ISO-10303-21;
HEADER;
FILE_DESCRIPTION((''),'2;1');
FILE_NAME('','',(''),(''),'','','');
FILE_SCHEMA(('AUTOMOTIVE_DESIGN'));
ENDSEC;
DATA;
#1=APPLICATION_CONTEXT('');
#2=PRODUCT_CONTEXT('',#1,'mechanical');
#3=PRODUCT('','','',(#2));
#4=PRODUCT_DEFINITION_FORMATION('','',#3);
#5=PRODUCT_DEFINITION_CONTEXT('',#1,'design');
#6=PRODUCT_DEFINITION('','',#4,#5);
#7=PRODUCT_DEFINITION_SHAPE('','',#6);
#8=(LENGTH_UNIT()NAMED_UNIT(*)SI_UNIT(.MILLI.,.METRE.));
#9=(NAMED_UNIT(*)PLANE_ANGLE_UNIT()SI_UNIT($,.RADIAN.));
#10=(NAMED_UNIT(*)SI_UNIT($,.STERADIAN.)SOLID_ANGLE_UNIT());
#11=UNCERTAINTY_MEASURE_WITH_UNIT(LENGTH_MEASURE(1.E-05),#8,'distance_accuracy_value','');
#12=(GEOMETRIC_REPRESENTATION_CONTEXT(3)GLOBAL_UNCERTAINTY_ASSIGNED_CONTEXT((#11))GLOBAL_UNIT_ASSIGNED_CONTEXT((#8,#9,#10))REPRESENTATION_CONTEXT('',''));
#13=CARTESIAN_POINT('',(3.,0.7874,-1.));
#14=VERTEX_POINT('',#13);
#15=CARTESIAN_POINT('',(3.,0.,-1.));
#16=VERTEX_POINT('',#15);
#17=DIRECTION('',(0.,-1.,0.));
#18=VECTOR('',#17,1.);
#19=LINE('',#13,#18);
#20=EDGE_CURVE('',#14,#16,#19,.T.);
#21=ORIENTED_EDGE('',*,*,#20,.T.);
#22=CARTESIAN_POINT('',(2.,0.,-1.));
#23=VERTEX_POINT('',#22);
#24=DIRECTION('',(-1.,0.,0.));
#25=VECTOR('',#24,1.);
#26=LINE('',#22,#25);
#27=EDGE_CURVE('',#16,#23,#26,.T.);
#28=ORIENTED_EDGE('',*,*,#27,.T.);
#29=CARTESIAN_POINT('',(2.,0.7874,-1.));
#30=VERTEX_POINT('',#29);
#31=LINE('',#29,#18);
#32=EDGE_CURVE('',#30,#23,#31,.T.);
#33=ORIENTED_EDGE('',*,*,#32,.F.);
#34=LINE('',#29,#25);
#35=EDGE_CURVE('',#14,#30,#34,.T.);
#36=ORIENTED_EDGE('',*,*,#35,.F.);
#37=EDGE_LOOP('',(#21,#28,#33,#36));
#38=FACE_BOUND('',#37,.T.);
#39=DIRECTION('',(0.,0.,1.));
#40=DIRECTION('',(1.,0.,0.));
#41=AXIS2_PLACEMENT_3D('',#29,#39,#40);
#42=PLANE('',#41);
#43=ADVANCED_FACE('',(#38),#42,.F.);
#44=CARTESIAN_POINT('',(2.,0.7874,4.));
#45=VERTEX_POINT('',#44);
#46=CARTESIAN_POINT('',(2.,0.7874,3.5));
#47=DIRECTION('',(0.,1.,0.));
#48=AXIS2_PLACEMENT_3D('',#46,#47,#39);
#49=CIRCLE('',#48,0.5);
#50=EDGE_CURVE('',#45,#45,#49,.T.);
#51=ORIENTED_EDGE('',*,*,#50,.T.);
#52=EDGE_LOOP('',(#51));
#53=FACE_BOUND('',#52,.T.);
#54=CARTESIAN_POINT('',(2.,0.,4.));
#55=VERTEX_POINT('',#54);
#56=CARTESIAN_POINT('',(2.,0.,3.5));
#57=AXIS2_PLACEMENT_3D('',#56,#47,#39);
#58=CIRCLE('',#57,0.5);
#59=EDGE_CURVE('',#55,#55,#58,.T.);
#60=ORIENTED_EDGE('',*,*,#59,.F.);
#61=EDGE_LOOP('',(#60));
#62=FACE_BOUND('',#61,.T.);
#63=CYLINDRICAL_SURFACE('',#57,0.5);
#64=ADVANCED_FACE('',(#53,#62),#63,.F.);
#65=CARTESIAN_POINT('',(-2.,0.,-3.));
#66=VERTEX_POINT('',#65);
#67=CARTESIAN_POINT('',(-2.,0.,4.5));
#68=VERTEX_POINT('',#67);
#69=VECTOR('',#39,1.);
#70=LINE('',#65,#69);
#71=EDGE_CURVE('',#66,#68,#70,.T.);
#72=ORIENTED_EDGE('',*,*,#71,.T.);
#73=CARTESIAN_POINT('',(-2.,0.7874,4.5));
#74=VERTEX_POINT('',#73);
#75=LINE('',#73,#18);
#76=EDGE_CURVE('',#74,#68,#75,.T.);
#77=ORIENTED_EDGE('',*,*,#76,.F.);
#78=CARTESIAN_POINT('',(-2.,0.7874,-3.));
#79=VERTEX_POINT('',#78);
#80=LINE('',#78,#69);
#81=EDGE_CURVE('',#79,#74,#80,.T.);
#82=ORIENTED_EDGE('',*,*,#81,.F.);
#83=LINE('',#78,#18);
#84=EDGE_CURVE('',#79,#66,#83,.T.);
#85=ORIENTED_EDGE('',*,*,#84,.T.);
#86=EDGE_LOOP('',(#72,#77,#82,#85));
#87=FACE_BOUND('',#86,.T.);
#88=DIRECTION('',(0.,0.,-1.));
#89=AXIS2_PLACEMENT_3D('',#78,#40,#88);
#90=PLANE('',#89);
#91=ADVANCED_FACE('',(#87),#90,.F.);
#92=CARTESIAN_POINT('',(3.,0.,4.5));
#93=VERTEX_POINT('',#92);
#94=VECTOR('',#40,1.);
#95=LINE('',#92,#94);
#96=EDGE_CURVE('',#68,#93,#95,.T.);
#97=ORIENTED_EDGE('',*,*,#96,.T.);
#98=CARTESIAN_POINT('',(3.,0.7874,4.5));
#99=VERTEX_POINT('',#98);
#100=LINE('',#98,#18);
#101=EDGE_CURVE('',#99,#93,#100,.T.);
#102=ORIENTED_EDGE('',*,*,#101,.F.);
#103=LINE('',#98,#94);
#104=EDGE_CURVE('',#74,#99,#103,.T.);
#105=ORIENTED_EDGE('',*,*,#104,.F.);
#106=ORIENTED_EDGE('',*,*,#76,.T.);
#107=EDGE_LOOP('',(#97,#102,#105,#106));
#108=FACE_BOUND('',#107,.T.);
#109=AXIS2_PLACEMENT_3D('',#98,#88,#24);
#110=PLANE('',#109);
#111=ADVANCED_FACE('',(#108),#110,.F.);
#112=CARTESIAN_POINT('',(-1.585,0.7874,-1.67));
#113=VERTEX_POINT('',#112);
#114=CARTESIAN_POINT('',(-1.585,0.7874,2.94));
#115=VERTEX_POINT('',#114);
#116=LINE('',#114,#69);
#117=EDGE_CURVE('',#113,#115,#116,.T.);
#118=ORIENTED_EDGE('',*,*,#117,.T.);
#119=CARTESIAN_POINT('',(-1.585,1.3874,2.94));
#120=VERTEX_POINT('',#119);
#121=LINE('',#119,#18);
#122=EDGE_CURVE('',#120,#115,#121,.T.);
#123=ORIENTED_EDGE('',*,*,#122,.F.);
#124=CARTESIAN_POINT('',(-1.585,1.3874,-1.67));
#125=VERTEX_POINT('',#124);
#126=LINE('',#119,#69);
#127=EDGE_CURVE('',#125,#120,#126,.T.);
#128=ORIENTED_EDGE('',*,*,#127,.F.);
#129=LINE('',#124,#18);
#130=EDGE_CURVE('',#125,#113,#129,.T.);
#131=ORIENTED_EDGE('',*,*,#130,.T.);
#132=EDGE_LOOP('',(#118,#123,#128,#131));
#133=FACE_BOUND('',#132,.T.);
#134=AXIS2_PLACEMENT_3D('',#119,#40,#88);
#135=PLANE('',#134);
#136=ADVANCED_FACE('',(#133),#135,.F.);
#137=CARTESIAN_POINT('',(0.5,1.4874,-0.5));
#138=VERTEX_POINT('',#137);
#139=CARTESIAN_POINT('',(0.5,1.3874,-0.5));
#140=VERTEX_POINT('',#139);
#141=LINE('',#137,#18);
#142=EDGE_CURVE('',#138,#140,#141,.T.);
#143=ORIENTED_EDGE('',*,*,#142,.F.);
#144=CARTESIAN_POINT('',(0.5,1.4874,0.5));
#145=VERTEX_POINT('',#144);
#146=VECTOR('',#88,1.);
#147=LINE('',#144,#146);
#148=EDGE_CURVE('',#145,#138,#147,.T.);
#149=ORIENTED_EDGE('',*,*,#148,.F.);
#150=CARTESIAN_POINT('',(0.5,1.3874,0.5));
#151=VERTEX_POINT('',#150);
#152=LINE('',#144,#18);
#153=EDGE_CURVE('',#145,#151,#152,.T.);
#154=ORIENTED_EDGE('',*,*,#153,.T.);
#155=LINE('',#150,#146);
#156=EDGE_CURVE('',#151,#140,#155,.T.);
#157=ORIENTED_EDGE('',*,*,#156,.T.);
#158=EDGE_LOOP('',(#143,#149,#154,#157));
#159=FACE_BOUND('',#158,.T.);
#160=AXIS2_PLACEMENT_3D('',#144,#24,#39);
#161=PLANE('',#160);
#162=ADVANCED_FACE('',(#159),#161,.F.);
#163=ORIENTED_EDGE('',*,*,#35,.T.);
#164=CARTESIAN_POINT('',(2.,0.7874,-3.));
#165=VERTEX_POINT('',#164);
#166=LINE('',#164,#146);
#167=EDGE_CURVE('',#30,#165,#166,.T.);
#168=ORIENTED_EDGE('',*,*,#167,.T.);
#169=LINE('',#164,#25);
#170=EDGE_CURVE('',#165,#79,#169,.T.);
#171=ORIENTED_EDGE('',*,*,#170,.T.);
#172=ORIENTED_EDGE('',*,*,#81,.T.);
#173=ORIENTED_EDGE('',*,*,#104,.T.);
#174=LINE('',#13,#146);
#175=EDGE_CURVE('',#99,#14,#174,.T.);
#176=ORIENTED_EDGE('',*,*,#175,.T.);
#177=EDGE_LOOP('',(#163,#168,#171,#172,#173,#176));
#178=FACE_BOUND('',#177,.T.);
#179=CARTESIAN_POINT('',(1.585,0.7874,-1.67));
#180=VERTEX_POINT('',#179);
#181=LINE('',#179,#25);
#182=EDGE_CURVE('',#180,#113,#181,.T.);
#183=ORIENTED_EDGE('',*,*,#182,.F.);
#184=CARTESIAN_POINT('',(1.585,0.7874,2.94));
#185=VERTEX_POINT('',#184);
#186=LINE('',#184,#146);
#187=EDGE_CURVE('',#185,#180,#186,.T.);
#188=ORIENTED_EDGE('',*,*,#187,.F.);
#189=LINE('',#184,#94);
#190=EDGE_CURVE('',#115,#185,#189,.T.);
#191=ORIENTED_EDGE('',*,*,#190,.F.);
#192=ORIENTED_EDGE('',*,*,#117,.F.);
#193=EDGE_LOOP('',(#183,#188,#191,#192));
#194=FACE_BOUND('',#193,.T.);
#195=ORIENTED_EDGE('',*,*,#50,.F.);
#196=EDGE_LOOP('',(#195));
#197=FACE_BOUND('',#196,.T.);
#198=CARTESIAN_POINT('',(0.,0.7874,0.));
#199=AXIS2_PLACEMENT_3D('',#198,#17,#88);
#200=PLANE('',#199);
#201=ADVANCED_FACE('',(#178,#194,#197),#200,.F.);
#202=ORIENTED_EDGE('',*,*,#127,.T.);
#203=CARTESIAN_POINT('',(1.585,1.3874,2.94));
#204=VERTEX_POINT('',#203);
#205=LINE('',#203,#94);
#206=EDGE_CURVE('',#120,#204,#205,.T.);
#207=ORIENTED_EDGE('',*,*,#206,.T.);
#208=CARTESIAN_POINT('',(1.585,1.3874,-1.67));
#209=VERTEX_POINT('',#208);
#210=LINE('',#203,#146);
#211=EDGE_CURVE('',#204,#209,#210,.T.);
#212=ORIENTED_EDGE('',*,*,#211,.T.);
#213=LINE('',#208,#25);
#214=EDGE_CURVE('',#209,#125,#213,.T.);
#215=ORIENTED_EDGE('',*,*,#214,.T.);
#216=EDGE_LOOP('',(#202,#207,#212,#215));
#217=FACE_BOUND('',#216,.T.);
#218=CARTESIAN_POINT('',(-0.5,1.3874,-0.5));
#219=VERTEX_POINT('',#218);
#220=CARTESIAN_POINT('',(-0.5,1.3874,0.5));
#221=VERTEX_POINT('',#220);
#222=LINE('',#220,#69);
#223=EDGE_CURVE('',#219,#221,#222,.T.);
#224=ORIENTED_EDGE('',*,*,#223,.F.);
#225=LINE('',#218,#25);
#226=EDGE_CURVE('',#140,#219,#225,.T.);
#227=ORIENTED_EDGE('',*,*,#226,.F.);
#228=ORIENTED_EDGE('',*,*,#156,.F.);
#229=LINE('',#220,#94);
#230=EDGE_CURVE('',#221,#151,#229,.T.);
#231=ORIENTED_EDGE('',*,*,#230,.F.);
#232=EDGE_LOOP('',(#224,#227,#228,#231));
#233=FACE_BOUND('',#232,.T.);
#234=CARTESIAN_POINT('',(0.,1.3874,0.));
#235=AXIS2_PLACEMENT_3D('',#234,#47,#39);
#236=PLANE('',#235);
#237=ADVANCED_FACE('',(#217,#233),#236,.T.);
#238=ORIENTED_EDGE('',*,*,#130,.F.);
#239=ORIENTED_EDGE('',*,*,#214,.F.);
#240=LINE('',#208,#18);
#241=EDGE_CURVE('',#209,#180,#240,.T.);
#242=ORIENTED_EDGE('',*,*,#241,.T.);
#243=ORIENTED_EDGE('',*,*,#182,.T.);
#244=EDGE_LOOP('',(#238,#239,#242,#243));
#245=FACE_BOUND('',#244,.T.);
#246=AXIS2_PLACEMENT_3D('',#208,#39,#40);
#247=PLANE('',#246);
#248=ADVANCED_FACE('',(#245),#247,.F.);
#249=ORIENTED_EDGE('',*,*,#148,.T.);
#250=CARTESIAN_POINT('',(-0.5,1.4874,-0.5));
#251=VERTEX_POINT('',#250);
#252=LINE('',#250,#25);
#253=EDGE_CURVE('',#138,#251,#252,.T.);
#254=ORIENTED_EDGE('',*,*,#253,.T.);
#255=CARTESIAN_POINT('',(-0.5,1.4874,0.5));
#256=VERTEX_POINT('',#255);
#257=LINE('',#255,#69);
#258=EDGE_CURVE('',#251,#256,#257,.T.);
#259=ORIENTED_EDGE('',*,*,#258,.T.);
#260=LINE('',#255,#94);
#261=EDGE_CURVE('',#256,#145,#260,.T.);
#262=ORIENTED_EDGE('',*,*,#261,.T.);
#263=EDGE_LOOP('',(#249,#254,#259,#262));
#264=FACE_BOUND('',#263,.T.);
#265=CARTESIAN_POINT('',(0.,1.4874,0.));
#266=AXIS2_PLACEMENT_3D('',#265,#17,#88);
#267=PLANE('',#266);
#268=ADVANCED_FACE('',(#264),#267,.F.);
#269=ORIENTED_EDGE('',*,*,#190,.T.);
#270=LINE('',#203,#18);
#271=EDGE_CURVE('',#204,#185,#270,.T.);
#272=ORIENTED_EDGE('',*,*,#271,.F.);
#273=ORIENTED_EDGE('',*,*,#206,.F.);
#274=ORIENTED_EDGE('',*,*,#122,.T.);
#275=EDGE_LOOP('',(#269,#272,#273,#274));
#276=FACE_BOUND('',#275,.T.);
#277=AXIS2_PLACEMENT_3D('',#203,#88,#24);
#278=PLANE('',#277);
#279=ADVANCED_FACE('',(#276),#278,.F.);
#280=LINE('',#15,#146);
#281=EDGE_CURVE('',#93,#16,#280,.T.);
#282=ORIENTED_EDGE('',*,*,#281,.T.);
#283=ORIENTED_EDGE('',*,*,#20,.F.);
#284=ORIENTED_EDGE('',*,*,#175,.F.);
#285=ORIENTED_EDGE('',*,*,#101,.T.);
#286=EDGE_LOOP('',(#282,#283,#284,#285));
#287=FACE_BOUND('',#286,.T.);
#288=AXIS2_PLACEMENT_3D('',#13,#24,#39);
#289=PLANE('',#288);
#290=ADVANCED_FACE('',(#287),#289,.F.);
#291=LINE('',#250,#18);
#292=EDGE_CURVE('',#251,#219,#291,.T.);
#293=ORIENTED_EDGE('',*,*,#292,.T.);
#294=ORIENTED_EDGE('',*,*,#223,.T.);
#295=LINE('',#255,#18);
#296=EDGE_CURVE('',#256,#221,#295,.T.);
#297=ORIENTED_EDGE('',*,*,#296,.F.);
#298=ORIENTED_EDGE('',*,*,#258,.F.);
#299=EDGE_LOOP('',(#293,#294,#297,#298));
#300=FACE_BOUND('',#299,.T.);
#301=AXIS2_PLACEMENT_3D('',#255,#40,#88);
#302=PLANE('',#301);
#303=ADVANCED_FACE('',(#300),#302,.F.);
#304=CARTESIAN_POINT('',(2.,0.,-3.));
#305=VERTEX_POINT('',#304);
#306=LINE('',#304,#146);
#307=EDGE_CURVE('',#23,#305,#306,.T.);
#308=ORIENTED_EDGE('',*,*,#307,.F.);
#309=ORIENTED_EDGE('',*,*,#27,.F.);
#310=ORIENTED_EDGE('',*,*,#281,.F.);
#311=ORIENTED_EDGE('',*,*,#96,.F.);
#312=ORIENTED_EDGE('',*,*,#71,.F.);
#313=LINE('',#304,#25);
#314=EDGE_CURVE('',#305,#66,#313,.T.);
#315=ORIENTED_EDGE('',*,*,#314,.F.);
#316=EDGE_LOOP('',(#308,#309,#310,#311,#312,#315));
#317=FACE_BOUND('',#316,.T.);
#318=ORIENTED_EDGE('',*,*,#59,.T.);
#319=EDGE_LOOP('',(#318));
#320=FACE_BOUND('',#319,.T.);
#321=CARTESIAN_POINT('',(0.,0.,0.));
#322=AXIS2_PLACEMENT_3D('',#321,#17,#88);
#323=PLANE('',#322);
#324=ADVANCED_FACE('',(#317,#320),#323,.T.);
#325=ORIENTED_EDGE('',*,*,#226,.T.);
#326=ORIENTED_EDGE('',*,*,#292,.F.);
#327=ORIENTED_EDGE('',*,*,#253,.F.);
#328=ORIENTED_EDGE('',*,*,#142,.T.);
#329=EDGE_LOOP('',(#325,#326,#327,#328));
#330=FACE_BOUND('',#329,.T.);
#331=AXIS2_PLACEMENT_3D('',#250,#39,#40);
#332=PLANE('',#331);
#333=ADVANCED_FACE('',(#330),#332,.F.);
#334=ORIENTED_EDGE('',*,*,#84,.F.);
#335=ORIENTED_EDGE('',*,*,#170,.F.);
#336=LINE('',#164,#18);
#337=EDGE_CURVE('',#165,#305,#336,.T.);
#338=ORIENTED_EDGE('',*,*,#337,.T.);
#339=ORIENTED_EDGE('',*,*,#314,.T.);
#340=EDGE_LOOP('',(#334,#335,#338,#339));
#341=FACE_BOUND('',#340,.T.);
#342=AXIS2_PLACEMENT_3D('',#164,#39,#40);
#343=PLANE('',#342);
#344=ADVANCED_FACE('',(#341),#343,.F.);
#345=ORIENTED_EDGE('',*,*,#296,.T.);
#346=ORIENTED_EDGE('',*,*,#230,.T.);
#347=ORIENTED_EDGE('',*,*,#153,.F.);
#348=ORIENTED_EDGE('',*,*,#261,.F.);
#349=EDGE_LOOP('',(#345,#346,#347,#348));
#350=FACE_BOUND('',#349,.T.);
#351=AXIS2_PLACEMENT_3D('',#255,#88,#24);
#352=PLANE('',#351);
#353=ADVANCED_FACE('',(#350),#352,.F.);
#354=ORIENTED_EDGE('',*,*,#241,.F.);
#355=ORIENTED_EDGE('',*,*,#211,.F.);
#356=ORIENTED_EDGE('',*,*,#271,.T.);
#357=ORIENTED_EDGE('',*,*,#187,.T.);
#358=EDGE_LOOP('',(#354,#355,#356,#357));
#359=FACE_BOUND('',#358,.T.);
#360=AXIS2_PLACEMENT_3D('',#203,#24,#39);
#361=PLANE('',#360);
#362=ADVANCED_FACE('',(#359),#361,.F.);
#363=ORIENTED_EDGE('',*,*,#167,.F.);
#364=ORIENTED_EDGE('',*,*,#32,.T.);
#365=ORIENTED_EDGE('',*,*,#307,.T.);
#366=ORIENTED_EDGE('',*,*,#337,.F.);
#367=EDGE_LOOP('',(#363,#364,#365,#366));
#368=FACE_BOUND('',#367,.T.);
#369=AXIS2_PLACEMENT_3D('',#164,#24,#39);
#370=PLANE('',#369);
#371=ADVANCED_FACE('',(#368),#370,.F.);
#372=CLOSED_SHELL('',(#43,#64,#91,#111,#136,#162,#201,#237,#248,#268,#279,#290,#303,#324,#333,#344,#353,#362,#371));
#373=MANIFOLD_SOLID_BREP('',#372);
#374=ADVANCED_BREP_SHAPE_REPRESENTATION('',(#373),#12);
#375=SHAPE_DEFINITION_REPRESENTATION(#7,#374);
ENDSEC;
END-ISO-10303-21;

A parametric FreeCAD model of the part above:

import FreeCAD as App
import Part
import Sketcher
Q = App.Units.Quantity


def add_polygon(sketch, points):
    """Adds a closed chain of lines whose ends are joined by coincident constraints."""
    first, n = sketch.GeometryCount, len(points)
    for a, b in zip(points, points[1:] + points[:1]):
        sketch.addGeometry(Part.LineSegment(App.Vector(*a, 0), App.Vector(*b, 0)), False)
    for i in range(n):
        sketch.addConstraint(Sketcher.Constraint("Coincident", first + i, 2, first + (i + 1) % n, 1))

doc = App.newDocument("Part")
body = doc.addObject("PartDesign::Body", "Body")

# Sketch on XZ plane
sketch1 = doc.addObject("Sketcher::SketchObject", "Sketch")
body.addObject(sketch1)
sketch1.AttachmentSupport = (doc.XZ_Plane, [""])
sketch1.MapMode = "FlatFace"
add_polygon(sketch1, [(2, -1), (2, -3), (-2, -3), (-2, 4.5), (3, 4.5), (3, -1)])  # lines 0-5
sketch1.addConstraint(Sketcher.Constraint("Vertical", 0))
sketch1.addConstraint(Sketcher.Constraint("Horizontal", 1))
sketch1.addConstraint(Sketcher.Constraint("Vertical", 2))
sketch1.addConstraint(Sketcher.Constraint("Horizontal", 3))
sketch1.addConstraint(Sketcher.Constraint("Vertical", 4))
sketch1.addConstraint(Sketcher.Constraint("Horizontal", 5))
sketch1.addConstraint(Sketcher.Constraint("DistanceX", 1, 2, 1, 1, Q("4 mm")))
sketch1.addConstraint(Sketcher.Constraint("DistanceX", 3, 1, 3, 2, Q("5 mm")))
sketch1.addConstraint(Sketcher.Constraint("DistanceY", 0, 2, 0, 1, Q("2 mm")))
sketch1.addConstraint(Sketcher.Constraint("DistanceY", 2, 1, 2, 2, Q("7.5 mm")))
sketch1.addConstraint(Sketcher.Constraint("DistanceX", -1, 1, 0, 2, Q("2 mm")))
sketch1.addConstraint(Sketcher.Constraint("DistanceY", 0, 2, -1, 1, Q("3 mm")))
pad1 = doc.addObject("PartDesign::Pad", "Pad")
body.addObject(pad1)
pad1.Profile = sketch1
pad1.Length = 0.7874
pad1.Reversed = True

# Sketch on XZ plane
sketch2 = doc.addObject("Sketcher::SketchObject", "Sketch001")
body.addObject(sketch2)
sketch2.AttachmentSupport = (doc.XZ_Plane, [""])
sketch2.MapMode = "FlatFace"
sketch2.AttachmentOffset = App.Placement(App.Vector(0, 0, -0.7874), App.Rotation())
add_polygon(sketch2, [(-1.6, -1.7), (-1.6, 2.9), (1.6, 2.9), (1.6, -1.7)])  # lines 0-3
sketch2.addConstraint(Sketcher.Constraint("Vertical", 0))
sketch2.addConstraint(Sketcher.Constraint("Horizontal", 1))
sketch2.addConstraint(Sketcher.Constraint("Vertical", 2))
sketch2.addConstraint(Sketcher.Constraint("Horizontal", 3))
sketch2.addConstraint(Sketcher.Constraint("DistanceX", 1, 1, 1, 2, Q("3.17 mm")))
sketch2.addConstraint(Sketcher.Constraint("DistanceY", 0, 1, 0, 2, Q("4.61 mm")))
sketch2.addConstraint(Sketcher.Constraint("DistanceY", -1, 1, 0, 2, Q("2.94 mm")))
sketch2.addConstraint(Sketcher.Constraint("DistanceX", 0, 2, -1, 1, Q("1.585 mm")))
pad2 = doc.addObject("PartDesign::Pad", "Pad001")
body.addObject(pad2)
pad2.Profile = sketch2
pad2.Length = 0.6
pad2.Reversed = True

# Sketch on XZ plane
sketch3 = doc.addObject("Sketcher::SketchObject", "Sketch002")
body.addObject(sketch3)
sketch3.AttachmentSupport = (doc.XZ_Plane, [""])
sketch3.MapMode = "FlatFace"
sketch3.AttachmentOffset = App.Placement(App.Vector(0, 0, -1.3874), App.Rotation())
add_polygon(sketch3, [(-0.5, -0.5), (-0.5, 0.5), (0.5, 0.5), (0.5, -0.5)])  # lines 0-3
sketch3.addConstraint(Sketcher.Constraint("Vertical", 0))
sketch3.addConstraint(Sketcher.Constraint("Horizontal", 1))
sketch3.addConstraint(Sketcher.Constraint("Vertical", 2))
sketch3.addConstraint(Sketcher.Constraint("Horizontal", 3))
sketch3.addConstraint(Sketcher.Constraint("Symmetric", 0, 2, 2, 2, -1, 1))
sketch3.addConstraint(Sketcher.Constraint("Equal", 3, 0))
sketch3.addConstraint(Sketcher.Constraint("DistanceX", 1, 1, 1, 2, Q("1 mm")))
pad3 = doc.addObject("PartDesign::Pad", "Pad002")
body.addObject(pad3)
pad3.Profile = sketch3
pad3.Length = 0.1
pad3.Reversed = True

# Sketch on XZ plane
sketch4 = doc.addObject("Sketcher::SketchObject", "Sketch003")
body.addObject(sketch4)
sketch4.AttachmentSupport = (doc.XZ_Plane, [""])
sketch4.MapMode = "FlatFace"
sketch4.AttachmentOffset = App.Placement(App.Vector(0, 0, -0.7874), App.Rotation())
sketch4.addGeometry(Part.Circle(App.Vector(2, 3.5, 0), App.Vector(0, 0, 1), 0.5), False)
sketch4.addConstraint(Sketcher.Constraint("Diameter", 0, Q("1 mm")))
sketch4.addConstraint(Sketcher.Constraint("DistanceX", -1, 1, 0, 3, Q("2 mm")))
sketch4.addConstraint(Sketcher.Constraint("DistanceY", -1, 1, 0, 3, Q("3.5 mm")))
pocket1 = doc.addObject("PartDesign::Pocket", "Pocket")
body.addObject(pocket1)
pocket1.Profile = sketch4
pocket1.Type = "ThroughAll"
pocket1.Reversed = True

doc.recompute()
